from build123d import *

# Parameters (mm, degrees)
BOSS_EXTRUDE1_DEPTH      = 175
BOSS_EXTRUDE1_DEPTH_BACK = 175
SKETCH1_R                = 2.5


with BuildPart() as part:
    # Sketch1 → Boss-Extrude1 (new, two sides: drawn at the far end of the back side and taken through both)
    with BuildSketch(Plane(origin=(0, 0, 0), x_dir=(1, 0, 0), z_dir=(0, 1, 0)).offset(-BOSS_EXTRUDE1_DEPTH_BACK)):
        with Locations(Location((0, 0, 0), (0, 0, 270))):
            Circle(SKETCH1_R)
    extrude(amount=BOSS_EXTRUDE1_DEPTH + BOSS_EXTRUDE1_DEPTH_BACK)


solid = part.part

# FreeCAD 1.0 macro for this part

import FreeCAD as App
import Part
import Sketcher

V = App.Vector

doc = App.newDocument("Part")
body = doc.addObject("PartDesign::Body", "Body")

sketch1 = body.newObject("Sketcher::SketchObject", "Sketch")
sketch1.AttachmentSupport = (doc.getObject("XZ_Plane"), [""])
sketch1.MapMode = "FlatFace"
sketch1.addGeometry(Part.Circle(V(0, 0, 0), V(0, 0, 1), 2.5), False)
sketch1.addConstraint([
    Sketcher.Constraint("Coincident", 0, 3, -1, 1),
    Sketcher.Constraint("Diameter", 0, 5.0),
])
pad1 = body.newObject("PartDesign::Pad", "Pad")
pad1.Profile = sketch1
pad1.Type = "TwoLengths"
pad1.Length = 175
pad1.Length2 = 175
pad1.Reversed = True

doc.recompute()
